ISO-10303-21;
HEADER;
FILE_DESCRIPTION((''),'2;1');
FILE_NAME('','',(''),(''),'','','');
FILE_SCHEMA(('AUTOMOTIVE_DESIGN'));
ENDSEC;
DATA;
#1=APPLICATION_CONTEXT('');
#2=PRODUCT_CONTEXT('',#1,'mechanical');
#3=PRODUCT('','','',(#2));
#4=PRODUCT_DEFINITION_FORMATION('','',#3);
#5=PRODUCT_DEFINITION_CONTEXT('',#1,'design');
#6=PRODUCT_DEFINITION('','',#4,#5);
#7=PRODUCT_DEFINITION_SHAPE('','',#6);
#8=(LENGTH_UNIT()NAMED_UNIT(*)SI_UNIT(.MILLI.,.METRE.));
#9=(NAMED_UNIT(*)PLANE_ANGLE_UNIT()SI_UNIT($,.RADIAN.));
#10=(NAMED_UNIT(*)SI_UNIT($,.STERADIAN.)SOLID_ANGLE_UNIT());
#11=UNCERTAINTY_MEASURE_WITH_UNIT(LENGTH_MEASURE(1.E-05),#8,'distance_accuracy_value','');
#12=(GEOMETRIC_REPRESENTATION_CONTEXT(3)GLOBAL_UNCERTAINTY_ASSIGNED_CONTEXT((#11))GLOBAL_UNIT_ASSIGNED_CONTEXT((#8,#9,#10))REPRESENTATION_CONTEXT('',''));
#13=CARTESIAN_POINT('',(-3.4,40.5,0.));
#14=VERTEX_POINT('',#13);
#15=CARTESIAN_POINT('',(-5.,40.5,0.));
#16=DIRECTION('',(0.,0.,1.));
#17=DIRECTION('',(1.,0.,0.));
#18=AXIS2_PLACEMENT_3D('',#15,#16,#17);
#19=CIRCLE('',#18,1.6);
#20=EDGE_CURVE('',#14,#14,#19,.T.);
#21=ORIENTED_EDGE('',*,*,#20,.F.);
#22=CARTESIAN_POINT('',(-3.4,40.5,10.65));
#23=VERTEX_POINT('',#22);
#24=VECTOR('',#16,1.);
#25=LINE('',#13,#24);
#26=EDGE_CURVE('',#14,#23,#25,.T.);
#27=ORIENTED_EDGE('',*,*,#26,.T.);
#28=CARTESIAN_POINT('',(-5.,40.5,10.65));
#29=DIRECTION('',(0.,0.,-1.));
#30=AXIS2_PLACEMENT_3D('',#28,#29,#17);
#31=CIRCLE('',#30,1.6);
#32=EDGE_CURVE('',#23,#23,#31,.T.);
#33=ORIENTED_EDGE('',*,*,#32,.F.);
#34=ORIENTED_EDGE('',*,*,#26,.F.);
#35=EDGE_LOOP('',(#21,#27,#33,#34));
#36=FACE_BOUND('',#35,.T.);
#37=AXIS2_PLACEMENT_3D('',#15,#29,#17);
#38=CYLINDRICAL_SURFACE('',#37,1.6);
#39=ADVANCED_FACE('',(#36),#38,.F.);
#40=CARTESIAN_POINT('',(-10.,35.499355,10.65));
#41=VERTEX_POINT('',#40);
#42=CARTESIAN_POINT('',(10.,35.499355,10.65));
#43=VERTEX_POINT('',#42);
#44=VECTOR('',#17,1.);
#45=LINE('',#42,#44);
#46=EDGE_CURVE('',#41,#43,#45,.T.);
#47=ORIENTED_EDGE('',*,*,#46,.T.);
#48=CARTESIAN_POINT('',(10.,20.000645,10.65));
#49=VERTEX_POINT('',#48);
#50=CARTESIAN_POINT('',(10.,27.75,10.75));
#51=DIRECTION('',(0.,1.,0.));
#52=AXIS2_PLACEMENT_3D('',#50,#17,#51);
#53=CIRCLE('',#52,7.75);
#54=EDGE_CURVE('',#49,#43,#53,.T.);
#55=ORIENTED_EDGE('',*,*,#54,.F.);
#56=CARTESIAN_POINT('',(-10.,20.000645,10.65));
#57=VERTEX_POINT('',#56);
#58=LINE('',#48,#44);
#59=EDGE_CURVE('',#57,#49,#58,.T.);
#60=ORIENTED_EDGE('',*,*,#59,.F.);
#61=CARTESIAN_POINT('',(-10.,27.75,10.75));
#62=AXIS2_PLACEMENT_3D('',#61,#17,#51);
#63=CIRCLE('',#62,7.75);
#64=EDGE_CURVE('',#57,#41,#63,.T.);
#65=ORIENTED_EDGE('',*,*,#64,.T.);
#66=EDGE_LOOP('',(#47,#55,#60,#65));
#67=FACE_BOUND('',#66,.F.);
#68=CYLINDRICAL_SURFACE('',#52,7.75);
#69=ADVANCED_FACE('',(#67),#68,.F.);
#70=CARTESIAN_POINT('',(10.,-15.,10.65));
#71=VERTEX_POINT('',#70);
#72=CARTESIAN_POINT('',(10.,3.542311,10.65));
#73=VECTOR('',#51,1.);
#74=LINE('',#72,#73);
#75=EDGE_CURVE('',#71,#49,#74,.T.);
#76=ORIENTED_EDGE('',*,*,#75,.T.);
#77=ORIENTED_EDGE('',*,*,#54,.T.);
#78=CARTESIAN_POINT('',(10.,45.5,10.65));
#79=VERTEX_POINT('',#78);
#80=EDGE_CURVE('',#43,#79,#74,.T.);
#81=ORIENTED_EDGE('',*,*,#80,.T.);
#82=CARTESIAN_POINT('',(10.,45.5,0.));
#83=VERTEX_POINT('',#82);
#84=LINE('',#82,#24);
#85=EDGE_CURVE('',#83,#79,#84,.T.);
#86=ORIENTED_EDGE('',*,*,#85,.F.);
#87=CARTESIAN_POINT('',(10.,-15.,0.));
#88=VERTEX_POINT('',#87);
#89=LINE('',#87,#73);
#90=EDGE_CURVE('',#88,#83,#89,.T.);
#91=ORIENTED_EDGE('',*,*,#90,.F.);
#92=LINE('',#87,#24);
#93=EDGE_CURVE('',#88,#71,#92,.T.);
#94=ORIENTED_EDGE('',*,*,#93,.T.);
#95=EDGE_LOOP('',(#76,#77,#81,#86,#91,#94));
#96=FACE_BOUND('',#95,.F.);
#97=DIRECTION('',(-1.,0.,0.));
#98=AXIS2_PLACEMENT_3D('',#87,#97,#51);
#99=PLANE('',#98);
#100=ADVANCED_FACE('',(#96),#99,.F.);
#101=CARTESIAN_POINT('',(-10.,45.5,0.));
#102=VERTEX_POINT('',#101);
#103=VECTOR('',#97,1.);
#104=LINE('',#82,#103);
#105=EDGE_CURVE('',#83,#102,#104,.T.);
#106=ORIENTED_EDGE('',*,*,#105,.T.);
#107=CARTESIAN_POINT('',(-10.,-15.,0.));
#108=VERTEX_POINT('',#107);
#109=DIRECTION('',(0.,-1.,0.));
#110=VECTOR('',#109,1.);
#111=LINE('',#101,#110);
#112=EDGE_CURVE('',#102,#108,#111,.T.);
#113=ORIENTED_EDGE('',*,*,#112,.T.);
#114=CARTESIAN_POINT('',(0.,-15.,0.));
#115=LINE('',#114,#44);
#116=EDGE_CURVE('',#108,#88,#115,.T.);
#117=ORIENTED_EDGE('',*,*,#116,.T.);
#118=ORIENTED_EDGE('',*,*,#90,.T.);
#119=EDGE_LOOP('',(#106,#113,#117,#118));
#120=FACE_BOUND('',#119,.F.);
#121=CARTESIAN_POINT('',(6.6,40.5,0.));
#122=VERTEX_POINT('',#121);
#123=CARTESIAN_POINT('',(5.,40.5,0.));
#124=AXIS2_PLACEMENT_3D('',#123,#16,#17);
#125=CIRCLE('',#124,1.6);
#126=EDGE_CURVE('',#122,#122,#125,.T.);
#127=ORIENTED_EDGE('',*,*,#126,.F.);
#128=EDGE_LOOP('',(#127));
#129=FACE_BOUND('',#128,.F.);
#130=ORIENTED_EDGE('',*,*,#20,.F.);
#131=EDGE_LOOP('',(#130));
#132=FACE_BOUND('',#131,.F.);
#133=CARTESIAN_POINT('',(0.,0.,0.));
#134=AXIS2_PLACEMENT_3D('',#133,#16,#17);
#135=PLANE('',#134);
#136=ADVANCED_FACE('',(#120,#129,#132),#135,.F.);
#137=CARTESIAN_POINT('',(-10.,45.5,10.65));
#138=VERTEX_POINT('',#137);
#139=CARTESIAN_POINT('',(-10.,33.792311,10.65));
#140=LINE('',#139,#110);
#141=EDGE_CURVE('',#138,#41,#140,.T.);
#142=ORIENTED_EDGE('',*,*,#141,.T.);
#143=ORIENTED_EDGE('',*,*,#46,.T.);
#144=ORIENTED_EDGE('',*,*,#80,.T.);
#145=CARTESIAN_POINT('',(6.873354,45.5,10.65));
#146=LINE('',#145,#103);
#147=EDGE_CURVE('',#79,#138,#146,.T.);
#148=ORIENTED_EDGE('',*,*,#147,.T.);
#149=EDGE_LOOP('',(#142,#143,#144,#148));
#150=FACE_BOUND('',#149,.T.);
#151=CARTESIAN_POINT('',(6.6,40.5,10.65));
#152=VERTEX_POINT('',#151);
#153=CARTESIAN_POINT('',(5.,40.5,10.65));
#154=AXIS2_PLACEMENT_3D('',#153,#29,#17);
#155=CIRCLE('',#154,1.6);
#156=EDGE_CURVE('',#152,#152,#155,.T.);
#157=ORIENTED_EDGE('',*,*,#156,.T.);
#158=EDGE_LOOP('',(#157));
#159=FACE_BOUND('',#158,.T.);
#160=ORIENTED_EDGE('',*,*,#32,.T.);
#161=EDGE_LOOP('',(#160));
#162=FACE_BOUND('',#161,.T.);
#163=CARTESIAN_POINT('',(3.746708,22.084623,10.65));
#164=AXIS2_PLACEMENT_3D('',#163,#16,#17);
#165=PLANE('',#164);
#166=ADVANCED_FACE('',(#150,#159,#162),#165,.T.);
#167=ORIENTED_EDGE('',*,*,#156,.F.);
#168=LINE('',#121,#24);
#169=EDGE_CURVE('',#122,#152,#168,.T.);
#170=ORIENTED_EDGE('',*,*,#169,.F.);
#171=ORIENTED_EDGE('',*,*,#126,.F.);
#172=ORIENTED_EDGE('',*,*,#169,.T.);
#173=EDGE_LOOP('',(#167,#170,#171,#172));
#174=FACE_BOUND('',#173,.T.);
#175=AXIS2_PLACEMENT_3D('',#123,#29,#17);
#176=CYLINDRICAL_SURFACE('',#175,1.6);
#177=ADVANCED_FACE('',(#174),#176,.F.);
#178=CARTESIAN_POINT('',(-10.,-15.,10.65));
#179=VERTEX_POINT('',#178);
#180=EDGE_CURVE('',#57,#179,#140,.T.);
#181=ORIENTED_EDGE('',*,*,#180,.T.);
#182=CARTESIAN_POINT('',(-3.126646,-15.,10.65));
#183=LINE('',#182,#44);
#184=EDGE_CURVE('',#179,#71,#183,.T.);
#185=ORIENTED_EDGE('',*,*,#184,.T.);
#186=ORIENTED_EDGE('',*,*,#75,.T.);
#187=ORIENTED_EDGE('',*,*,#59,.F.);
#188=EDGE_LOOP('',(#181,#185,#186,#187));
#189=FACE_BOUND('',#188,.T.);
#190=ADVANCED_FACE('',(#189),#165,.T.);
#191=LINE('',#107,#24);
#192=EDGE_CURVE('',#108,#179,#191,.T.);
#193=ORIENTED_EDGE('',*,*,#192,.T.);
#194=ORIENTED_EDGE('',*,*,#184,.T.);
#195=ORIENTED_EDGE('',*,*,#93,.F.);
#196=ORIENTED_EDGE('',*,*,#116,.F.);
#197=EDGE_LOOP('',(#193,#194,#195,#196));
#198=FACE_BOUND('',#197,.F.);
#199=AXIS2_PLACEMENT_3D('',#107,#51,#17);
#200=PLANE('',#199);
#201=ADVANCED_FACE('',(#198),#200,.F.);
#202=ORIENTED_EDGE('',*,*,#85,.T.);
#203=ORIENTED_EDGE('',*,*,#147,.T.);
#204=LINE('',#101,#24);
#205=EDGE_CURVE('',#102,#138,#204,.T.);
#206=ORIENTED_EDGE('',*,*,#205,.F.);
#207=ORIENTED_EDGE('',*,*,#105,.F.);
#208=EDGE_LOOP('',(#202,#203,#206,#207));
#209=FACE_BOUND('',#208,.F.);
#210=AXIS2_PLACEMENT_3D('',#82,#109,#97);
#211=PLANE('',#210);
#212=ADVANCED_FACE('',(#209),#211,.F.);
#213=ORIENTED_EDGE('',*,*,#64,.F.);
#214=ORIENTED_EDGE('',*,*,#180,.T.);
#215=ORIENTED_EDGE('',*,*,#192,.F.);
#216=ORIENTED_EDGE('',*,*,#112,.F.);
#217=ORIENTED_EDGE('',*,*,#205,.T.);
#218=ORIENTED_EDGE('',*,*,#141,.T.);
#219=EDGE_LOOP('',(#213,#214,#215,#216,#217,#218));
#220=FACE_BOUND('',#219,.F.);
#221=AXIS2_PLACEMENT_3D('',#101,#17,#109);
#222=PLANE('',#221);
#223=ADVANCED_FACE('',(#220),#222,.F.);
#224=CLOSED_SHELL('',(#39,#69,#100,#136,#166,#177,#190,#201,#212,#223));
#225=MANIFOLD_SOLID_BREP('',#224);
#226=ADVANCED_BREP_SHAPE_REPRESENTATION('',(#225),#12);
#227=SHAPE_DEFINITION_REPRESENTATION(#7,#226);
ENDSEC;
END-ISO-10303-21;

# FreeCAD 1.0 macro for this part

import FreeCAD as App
import Part
import Sketcher
from FreeCAD import Vector
Q = App.Units.Quantity

doc = App.newDocument("Part")
body = doc.addObject("PartDesign::Body", "Body")

sketch1 = body.newObject("Sketcher::SketchObject", "Sketch")
sketch1.AttachmentSupport = (doc.getObject("XY_Plane"), [""])
sketch1.MapMode = "FlatFace"
sketch1.addGeometry(Part.LineSegment(Vector(-10, -15, 0), Vector(10, -15, 0)), False)
sketch1.addGeometry(Part.LineSegment(Vector(10, -15, 0), Vector(10, 45.5, 0)), False)
sketch1.addGeometry(Part.LineSegment(Vector(10, 45.5, 0), Vector(-10, 45.5, 0)), False)
sketch1.addGeometry(Part.LineSegment(Vector(-10, 45.5, 0), Vector(-10, -15, 0)), False)
sketch1.addGeometry(Part.Circle(Vector(-5, 40.5, 0), Vector(0, 0, 1), 1.6), False)
sketch1.addGeometry(Part.Circle(Vector(5, 40.5, 0), Vector(0, 0, 1), 1.6), False)
sketch1.addConstraint(Sketcher.Constraint("Coincident", 0, 2, 1, 1))
sketch1.addConstraint(Sketcher.Constraint("Coincident", 1, 2, 2, 1))
sketch1.addConstraint(Sketcher.Constraint("Coincident", 2, 2, 3, 1))
sketch1.addConstraint(Sketcher.Constraint("Coincident", 3, 2, 0, 1))
sketch1.addConstraint(Sketcher.Constraint("Horizontal", 0))
sketch1.addConstraint(Sketcher.Constraint("Vertical", 1))
sketch1.addConstraint(Sketcher.Constraint("Horizontal", 2))
sketch1.addConstraint(Sketcher.Constraint("Vertical", 3))
sketch1.addConstraint(Sketcher.Constraint("Equal", 4, 5))
sketch1.addConstraint(Sketcher.Constraint("Symmetric", 4, 3, 5, 3, -2))
sketch1.addConstraint(Sketcher.Constraint("Diameter", 4, Q("3.2 mm")))
sketch1.addConstraint(Sketcher.Constraint("DistanceX", 0, 1, 0, 2, Q("20 mm")))
sketch1.addConstraint(Sketcher.Constraint("DistanceY", 1, 1, 1, 2, Q("60.5 mm")))
sketch1.addConstraint(Sketcher.Constraint("DistanceX", 4, 3, -1, 1, Q("5 mm")))
sketch1.addConstraint(Sketcher.Constraint("DistanceX", -1, 1, 0, 2, Q("10 mm")))
sketch1.addConstraint(Sketcher.Constraint("DistanceY", 0, 2, -1, 1, Q("15 mm")))
sketch1.addConstraint(Sketcher.Constraint("DistanceY", 5, 3, 1, 2, Q("5 mm")))
pad1 = body.newObject("PartDesign::Pad", "Pad")
pad1.Profile = sketch1
pad1.Length = 10.75

sketch2 = body.newObject("Sketcher::SketchObject", "Sketch001")
sketch2.AttachmentSupport = (doc.getObject("YZ_Plane"), [""])
sketch2.MapMode = "FlatFace"
sketch2.AttachmentOffset = App.Placement(Vector(0, 0, 10), App.Rotation())
sketch2.addGeometry(Part.Circle(Vector(28, 11, 0), Vector(0, 0, 1), 8), False)
sketch2.addConstraint(Sketcher.Constraint("Diameter", 0, Q("15.5 mm")))
sketch2.addConstraint(Sketcher.Constraint("DistanceX", -1, 1, 0, 3, Q("27.75 mm")))
sketch2.addConstraint(Sketcher.Constraint("DistanceY", -1, 1, 0, 3, Q("10.75 mm")))
pocket1 = body.newObject("PartDesign::Pocket", "Pocket")
pocket1.Profile = sketch2
pocket1.Length = 25

sketch3 = body.newObject("Sketcher::SketchObject", "Sketch002")
sketch3.AttachmentSupport = (doc.getObject("XY_Plane"), [""])
sketch3.MapMode = "FlatFace"
sketch3.AttachmentOffset = App.Placement(Vector(0, 0, 10.75), App.Rotation())
sketch3.addGeometry(Part.LineSegment(Vector(-15, 69, 0), Vector(-15, -25, 0)), False)
sketch3.addGeometry(Part.LineSegment(Vector(-15, -25, 0), Vector(23, -25, 0)), False)
sketch3.addGeometry(Part.LineSegment(Vector(23, -25, 0), Vector(23, 69, 0)), False)
sketch3.addGeometry(Part.LineSegment(Vector(23, 69, 0), Vector(-15, 69, 0)), False)
sketch3.addConstraint(Sketcher.Constraint("Coincident", 0, 2, 1, 1))
sketch3.addConstraint(Sketcher.Constraint("Coincident", 1, 2, 2, 1))
sketch3.addConstraint(Sketcher.Constraint("Coincident", 2, 2, 3, 1))
sketch3.addConstraint(Sketcher.Constraint("Coincident", 3, 2, 0, 1))
sketch3.addConstraint(Sketcher.Constraint("Vertical", 0))
sketch3.addConstraint(Sketcher.Constraint("Horizontal", 1))
sketch3.addConstraint(Sketcher.Constraint("Vertical", 2))
sketch3.addConstraint(Sketcher.Constraint("Horizontal", 3))
sketch3.addConstraint(Sketcher.Constraint("DistanceX", 1, 1, 1, 2, Q("37.611449 mm")))
sketch3.addConstraint(Sketcher.Constraint("DistanceY", 0, 2, -1, 1, Q("24.5277 mm")))
sketch3.addConstraint(Sketcher.Constraint("DistanceY", 0, 2, 0, 1, Q("93.224645 mm")))
sketch3.addConstraint(Sketcher.Constraint("DistanceX", 0, 2, -1, 1, Q("15.059017 mm")))
pocket2 = body.newObject("PartDesign::Pocket", "Pocket001")
pocket2.Profile = sketch3
pocket2.Length = 0.1

doc.recompute()
